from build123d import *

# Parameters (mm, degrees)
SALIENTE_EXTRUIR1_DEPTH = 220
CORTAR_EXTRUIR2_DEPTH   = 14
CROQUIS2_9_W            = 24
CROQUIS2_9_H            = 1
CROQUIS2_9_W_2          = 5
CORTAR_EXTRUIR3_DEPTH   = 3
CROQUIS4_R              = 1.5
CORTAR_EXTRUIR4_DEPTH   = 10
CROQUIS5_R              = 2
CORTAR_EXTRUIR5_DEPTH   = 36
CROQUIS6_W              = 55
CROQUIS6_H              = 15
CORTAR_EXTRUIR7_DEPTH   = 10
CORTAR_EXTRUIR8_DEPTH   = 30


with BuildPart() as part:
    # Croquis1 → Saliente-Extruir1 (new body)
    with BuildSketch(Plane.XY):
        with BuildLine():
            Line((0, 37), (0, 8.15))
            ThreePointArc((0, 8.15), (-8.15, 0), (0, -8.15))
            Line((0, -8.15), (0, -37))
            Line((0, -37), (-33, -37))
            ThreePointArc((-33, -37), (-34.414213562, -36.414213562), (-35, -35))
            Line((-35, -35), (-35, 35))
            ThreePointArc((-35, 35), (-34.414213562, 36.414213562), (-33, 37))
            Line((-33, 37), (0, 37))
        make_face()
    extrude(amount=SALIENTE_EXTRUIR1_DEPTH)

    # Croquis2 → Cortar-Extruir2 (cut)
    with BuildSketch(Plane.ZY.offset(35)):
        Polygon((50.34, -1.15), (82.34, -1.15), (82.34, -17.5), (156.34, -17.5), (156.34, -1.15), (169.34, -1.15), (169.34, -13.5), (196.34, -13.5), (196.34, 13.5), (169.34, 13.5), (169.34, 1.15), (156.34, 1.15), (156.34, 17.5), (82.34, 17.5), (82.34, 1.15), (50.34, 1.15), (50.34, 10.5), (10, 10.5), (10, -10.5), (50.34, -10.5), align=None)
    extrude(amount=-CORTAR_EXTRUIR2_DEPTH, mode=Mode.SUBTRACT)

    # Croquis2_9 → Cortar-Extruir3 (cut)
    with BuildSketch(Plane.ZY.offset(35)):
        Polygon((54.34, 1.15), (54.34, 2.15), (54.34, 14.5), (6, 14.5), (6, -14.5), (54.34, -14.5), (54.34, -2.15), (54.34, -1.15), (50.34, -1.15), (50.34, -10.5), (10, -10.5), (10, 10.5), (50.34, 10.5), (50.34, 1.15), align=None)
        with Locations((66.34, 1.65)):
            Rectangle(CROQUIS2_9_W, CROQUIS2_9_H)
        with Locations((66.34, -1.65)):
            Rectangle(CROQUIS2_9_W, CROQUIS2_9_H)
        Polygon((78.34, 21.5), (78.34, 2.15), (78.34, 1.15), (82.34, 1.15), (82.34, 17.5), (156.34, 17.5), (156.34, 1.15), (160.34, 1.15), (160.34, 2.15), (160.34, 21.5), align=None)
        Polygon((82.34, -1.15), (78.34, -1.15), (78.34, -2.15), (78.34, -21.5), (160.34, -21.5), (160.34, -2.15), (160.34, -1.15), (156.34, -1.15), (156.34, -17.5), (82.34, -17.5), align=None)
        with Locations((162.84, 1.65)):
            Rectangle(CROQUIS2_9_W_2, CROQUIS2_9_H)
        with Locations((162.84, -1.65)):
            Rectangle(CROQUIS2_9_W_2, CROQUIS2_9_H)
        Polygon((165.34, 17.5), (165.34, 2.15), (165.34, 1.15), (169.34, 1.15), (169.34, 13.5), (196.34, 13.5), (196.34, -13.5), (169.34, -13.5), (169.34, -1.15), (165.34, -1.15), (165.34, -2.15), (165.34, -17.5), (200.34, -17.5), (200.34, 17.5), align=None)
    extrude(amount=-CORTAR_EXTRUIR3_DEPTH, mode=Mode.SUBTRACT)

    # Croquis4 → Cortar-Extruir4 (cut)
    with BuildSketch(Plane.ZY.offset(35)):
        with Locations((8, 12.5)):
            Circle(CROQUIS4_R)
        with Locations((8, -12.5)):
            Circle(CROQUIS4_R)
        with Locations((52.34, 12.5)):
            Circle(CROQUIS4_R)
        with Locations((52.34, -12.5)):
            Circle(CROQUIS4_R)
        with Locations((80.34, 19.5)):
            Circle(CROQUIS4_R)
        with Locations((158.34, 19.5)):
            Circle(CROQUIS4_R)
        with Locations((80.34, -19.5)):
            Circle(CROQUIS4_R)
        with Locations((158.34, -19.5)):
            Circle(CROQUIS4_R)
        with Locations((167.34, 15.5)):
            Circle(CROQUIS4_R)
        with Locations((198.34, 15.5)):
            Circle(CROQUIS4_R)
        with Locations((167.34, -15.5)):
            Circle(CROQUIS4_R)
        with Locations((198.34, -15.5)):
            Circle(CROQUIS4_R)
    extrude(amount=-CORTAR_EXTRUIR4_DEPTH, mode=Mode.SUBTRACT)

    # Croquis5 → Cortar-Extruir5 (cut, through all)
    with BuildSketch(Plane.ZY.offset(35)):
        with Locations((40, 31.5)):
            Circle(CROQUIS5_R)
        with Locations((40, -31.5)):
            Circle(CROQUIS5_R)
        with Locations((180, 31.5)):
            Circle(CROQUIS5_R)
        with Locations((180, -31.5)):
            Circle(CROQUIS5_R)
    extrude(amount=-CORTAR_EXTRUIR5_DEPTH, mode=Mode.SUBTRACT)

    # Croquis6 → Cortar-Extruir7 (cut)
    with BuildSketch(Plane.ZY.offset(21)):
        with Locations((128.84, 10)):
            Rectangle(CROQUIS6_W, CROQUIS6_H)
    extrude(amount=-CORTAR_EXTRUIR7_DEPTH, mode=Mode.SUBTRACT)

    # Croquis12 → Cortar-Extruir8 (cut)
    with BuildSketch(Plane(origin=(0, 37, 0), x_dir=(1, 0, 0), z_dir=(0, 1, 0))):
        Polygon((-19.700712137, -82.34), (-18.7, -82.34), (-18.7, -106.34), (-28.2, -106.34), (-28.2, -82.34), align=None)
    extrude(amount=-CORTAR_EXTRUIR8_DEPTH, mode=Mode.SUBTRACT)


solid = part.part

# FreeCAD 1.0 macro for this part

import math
import FreeCAD as App
import Part
import Sketcher

V = App.Vector
Q = App.Units.Quantity

doc = App.newDocument("Part")
body = doc.addObject("PartDesign::Body", "Body")

# Sketch on XY plane
sketch1 = body.newObject("Sketcher::SketchObject", "Sketch")
sketch1.AttachmentSupport = (doc.getObject("XY_Plane"), [""])
sketch1.MapMode = "FlatFace"
sketch1.addGeometry(Part.LineSegment(V(0, 8.15, 0), V(0, 37, 0)), False)
sketch1.addGeometry(Part.LineSegment(V(0, 37, 0), V(-33, 37, 0)), False)
sketch1.addGeometry(Part.ArcOfCircle(Part.Circle(V(-33, 35, 0), V(0, 0, 1), 2), math.radians(90), math.radians(180)), False)
sketch1.addGeometry(Part.LineSegment(V(-35, 35, 0), V(-35, -35, 0)), False)
sketch1.addGeometry(Part.ArcOfCircle(Part.Circle(V(-33, -35, 0), V(0, 0, 1), 2), math.radians(-180), math.radians(-90)), False)
sketch1.addGeometry(Part.LineSegment(V(-33, -37, 0), V(0, -37, 0)), False)
sketch1.addGeometry(Part.LineSegment(V(0, -37, 0), V(0, -8.15, 0)), False)
sketch1.addGeometry(Part.ArcOfCircle(Part.Circle(V(0, 0, 0), V(0, 0, 1), 8.15), math.radians(90), math.radians(270)), False)
sketch1.addConstraint(Sketcher.Constraint("Coincident", 0, 2, 1, 1))
sketch1.addConstraint(Sketcher.Constraint("Tangent", 1, 2, 2, 1))
sketch1.addConstraint(Sketcher.Constraint("Tangent", 2, 2, 3, 1))
sketch1.addConstraint(Sketcher.Constraint("Tangent", 3, 2, 4, 1))
sketch1.addConstraint(Sketcher.Constraint("Tangent", 4, 2, 5, 1))
sketch1.addConstraint(Sketcher.Constraint("Coincident", 5, 2, 6, 1))
sketch1.addConstraint(Sketcher.Constraint("Coincident", 6, 2, 7, 2))
sketch1.addConstraint(Sketcher.Constraint("Coincident", 7, 1, 0, 1))
sketch1.addConstraint(Sketcher.Constraint("Vertical", 0))
sketch1.addConstraint(Sketcher.Constraint("Horizontal", 1))
sketch1.addConstraint(Sketcher.Constraint("Vertical", 3))
sketch1.addConstraint(Sketcher.Constraint("Horizontal", 5))
sketch1.addConstraint(Sketcher.Constraint("Vertical", 6))
sketch1.addConstraint(Sketcher.Constraint("Coincident", 7, 3, -1, 1))
sketch1.addConstraint(Sketcher.Constraint("Equal", 2, 4))
sketch1.addConstraint(Sketcher.Constraint("Symmetric", 0, 2, 5, 2, -1, 1))
sketch1.addConstraint(Sketcher.Constraint("PointOnObject", 0, 2, -2))
sketch1.addConstraint(Sketcher.Constraint("Radius", 2, Q("2 mm")))
sketch1.addConstraint(Sketcher.Constraint("DistanceX", 1, 2, 1, 1, Q("33 mm")))
sketch1.addConstraint(Sketcher.Constraint("DistanceY", 3, 2, 3, 1, Q("70 mm")))
sketch1.addConstraint(Sketcher.Constraint("Radius", 7, Q("8.15 mm")))
pad1 = body.newObject("PartDesign::Pad", "Pad")
pad1.Profile = sketch1
pad1.Length = 220

# Sketch on YZ plane
sketch2 = body.newObject("Sketcher::SketchObject", "Sketch001")
sketch2.AttachmentSupport = (doc.getObject("YZ_Plane"), [""])
sketch2.MapMode = "FlatFace"
sketch2.AttachmentOffset = App.Placement(V(0, 0, -35), App.Rotation())
sketch2.addGeometry(Part.LineSegment(V(-1.15, 50.34, 0), V(-1.15, 82.34, 0)), False)
sketch2.addGeometry(Part.LineSegment(V(-1.15, 82.34, 0), V(-17.5, 82.34, 0)), False)
sketch2.addGeometry(Part.LineSegment(V(-17.5, 82.34, 0), V(-17.5, 156.34, 0)), False)
sketch2.addGeometry(Part.LineSegment(V(-17.5, 156.34, 0), V(-1.15, 156.34, 0)), False)
sketch2.addGeometry(Part.LineSegment(V(-1.15, 156.34, 0), V(-1.15, 169.34, 0)), False)
sketch2.addGeometry(Part.LineSegment(V(-1.15, 169.34, 0), V(-13.5, 169.34, 0)), False)
sketch2.addGeometry(Part.LineSegment(V(-13.5, 169.34, 0), V(-13.5, 196.34, 0)), False)
sketch2.addGeometry(Part.LineSegment(V(-13.5, 196.34, 0), V(13.5, 196.34, 0)), False)
sketch2.addGeometry(Part.LineSegment(V(13.5, 196.34, 0), V(13.5, 169.34, 0)), False)
sketch2.addGeometry(Part.LineSegment(V(13.5, 169.34, 0), V(1.15, 169.34, 0)), False)
sketch2.addGeometry(Part.LineSegment(V(1.15, 169.34, 0), V(1.15, 156.34, 0)), False)
sketch2.addGeometry(Part.LineSegment(V(1.15, 156.34, 0), V(17.5, 156.34, 0)), False)
sketch2.addGeometry(Part.LineSegment(V(17.5, 156.34, 0), V(17.5, 82.34, 0)), False)
sketch2.addGeometry(Part.LineSegment(V(17.5, 82.34, 0), V(1.15, 82.34, 0)), False)
sketch2.addGeometry(Part.LineSegment(V(1.15, 82.34, 0), V(1.15, 50.34, 0)), False)
sketch2.addGeometry(Part.LineSegment(V(1.15, 50.34, 0), V(10.5, 50.34, 0)), False)
sketch2.addGeometry(Part.LineSegment(V(10.5, 50.34, 0), V(10.5, 10, 0)), False)
sketch2.addGeometry(Part.LineSegment(V(10.5, 10, 0), V(-10.5, 10, 0)), False)
sketch2.addGeometry(Part.LineSegment(V(-10.5, 10, 0), V(-10.5, 50.34, 0)), False)
sketch2.addGeometry(Part.LineSegment(V(-10.5, 50.34, 0), V(-1.15, 50.34, 0)), False)
sketch2.addConstraint(Sketcher.Constraint("Coincident", 0, 2, 1, 1))
sketch2.addConstraint(Sketcher.Constraint("Coincident", 1, 2, 2, 1))
sketch2.addConstraint(Sketcher.Constraint("Coincident", 2, 2, 3, 1))
sketch2.addConstraint(Sketcher.Constraint("Coincident", 3, 2, 4, 1))
sketch2.addConstraint(Sketcher.Constraint("Coincident", 4, 2, 5, 1))
sketch2.addConstraint(Sketcher.Constraint("Coincident", 5, 2, 6, 1))
sketch2.addConstraint(Sketcher.Constraint("Coincident", 6, 2, 7, 1))
sketch2.addConstraint(Sketcher.Constraint("Coincident", 7, 2, 8, 1))
sketch2.addConstraint(Sketcher.Constraint("Coincident", 8, 2, 9, 1))
sketch2.addConstraint(Sketcher.Constraint("Coincident", 9, 2, 10, 1))
sketch2.addConstraint(Sketcher.Constraint("Coincident", 10, 2, 11, 1))
sketch2.addConstraint(Sketcher.Constraint("Coincident", 11, 2, 12, 1))
sketch2.addConstraint(Sketcher.Constraint("Coincident", 12, 2, 13, 1))
sketch2.addConstraint(Sketcher.Constraint("Coincident", 13, 2, 14, 1))
sketch2.addConstraint(Sketcher.Constraint("Coincident", 14, 2, 15, 1))
sketch2.addConstraint(Sketcher.Constraint("Coincident", 15, 2, 16, 1))
sketch2.addConstraint(Sketcher.Constraint("Coincident", 16, 2, 17, 1))
sketch2.addConstraint(Sketcher.Constraint("Coincident", 17, 2, 18, 1))
sketch2.addConstraint(Sketcher.Constraint("Coincident", 18, 2, 19, 1))
sketch2.addConstraint(Sketcher.Constraint("Coincident", 19, 2, 0, 1))
sketch2.addConstraint(Sketcher.Constraint("Vertical", 0))
sketch2.addConstraint(Sketcher.Constraint("Horizontal", 1))
sketch2.addConstraint(Sketcher.Constraint("Vertical", 2))
sketch2.addConstraint(Sketcher.Constraint("Horizontal", 3))
sketch2.addConstraint(Sketcher.Constraint("Vertical", 4))
sketch2.addConstraint(Sketcher.Constraint("Horizontal", 5))
sketch2.addConstraint(Sketcher.Constraint("Vertical", 6))
sketch2.addConstraint(Sketcher.Constraint("Horizontal", 7))
sketch2.addConstraint(Sketcher.Constraint("Vertical", 8))
sketch2.addConstraint(Sketcher.Constraint("Horizontal", 9))
sketch2.addConstraint(Sketcher.Constraint("Vertical", 10))
sketch2.addConstraint(Sketcher.Constraint("Horizontal", 11))
sketch2.addConstraint(Sketcher.Constraint("Vertical", 12))
sketch2.addConstraint(Sketcher.Constraint("Horizontal", 13))
sketch2.addConstraint(Sketcher.Constraint("Vertical", 14))
sketch2.addConstraint(Sketcher.Constraint("Horizontal", 15))
sketch2.addConstraint(Sketcher.Constraint("Vertical", 16))
sketch2.addConstraint(Sketcher.Constraint("Horizontal", 17))
sketch2.addConstraint(Sketcher.Constraint("Vertical", 18))
sketch2.addConstraint(Sketcher.Constraint("Horizontal", 19))
sketch2.addConstraint(Sketcher.Constraint("Symmetric", 5, 2, 8, 2, -2))
sketch2.addConstraint(Sketcher.Constraint("Symmetric", 3, 2, 10, 2, -2))
sketch2.addConstraint(Sketcher.Constraint("Symmetric", 1, 2, 12, 2, -2))
sketch2.addConstraint(Sketcher.Constraint("Symmetric", 15, 2, 18, 2, -2))
sketch2.addConstraint(Sketcher.Constraint("Vertical", 0, 2, 3, 2))
sketch2.addConstraint(Sketcher.Constraint("Vertical", 10, 2, 13, 2))
sketch2.addConstraint(Sketcher.Constraint("Equal", 7, 6))
sketch2.addConstraint(Sketcher.Constraint("DistanceX", 7, 1, 7, 2, Q("27 mm")))
sketch2.addConstraint(Sketcher.Constraint("DistanceX", 17, 2, 17, 1, Q("21 mm")))
sketch2.addConstraint(Sketcher.Constraint("DistanceY", 0, 1, 0, 2, Q("32 mm")))
sketch2.addConstraint(Sketcher.Constraint("DistanceY", 2, 1, 2, 2, Q("74 mm")))
sketch2.addConstraint(Sketcher.Constraint("DistanceY", 4, 1, 4, 2, Q("13 mm")))
sketch2.addConstraint(Sketcher.Constraint("DistanceY", -1, 1, 16, 2, Q("10 mm")))
sketch2.addConstraint(Sketcher.Constraint("DistanceX", 2, 2, 5, 2, Q("4 mm")))
sketch2.addConstraint(Sketcher.Constraint("DistanceX", 1, 2, 1, 1, Q("16.35 mm")))
sketch2.addConstraint(Sketcher.Constraint("DistanceY", 16, 2, 16, 1, Q("40.34 mm")))
pocket1 = body.newObject("PartDesign::Pocket", "Pocket")
pocket1.Profile = sketch2
pocket1.Length = 14
pocket1.Reversed = True

# Sketch on YZ plane
sketch3 = body.newObject("Sketcher::SketchObject", "Sketch002")
sketch3.AttachmentSupport = (doc.getObject("YZ_Plane"), [""])
sketch3.MapMode = "FlatFace"
sketch3.AttachmentOffset = App.Placement(V(0, 0, -35), App.Rotation())
sketch3.addGeometry(Part.LineSegment(V(2.15, 54.34, 0), V(14.5, 54.34, 0)), False)
sketch3.addGeometry(Part.LineSegment(V(14.5, 54.34, 0), V(14.5, 6, 0)), False)
sketch3.addGeometry(Part.LineSegment(V(14.5, 6, 0), V(-14.5, 6, 0)), False)
sketch3.addGeometry(Part.LineSegment(V(-14.5, 6, 0), V(-14.5, 54.34, 0)), False)
sketch3.addGeometry(Part.LineSegment(V(-14.5, 54.34, 0), V(-2.15, 54.34, 0)), False)
sketch3.addGeometry(Part.LineSegment(V(-2.15, 54.34, 0), V(-2.15, 78.34, 0)), False)
sketch3.addGeometry(Part.LineSegment(V(-2.15, 78.34, 0), V(-21.5, 78.34, 0)), False)
sketch3.addGeometry(Part.LineSegment(V(-21.5, 78.34, 0), V(-21.5, 160.34, 0)), False)
sketch3.addGeometry(Part.LineSegment(V(-21.5, 160.34, 0), V(-2.15, 160.34, 0)), False)
sketch3.addGeometry(Part.LineSegment(V(-2.15, 160.34, 0), V(-2.15, 165.34, 0)), False)
sketch3.addGeometry(Part.LineSegment(V(-2.15, 165.34, 0), V(-17.5, 165.34, 0)), False)
sketch3.addGeometry(Part.LineSegment(V(-17.5, 165.34, 0), V(-17.5, 200.34, 0)), False)
sketch3.addGeometry(Part.LineSegment(V(-17.5, 200.34, 0), V(17.5, 200.34, 0)), False)
sketch3.addGeometry(Part.LineSegment(V(17.5, 200.34, 0), V(17.5, 165.34, 0)), False)
sketch3.addGeometry(Part.LineSegment(V(17.5, 165.34, 0), V(2.15, 165.34, 0)), False)
sketch3.addGeometry(Part.LineSegment(V(2.15, 165.34, 0), V(2.15, 160.34, 0)), False)
sketch3.addGeometry(Part.LineSegment(V(2.15, 160.34, 0), V(21.5, 160.34, 0)), False)
sketch3.addGeometry(Part.LineSegment(V(21.5, 160.34, 0), V(21.5, 78.34, 0)), False)
sketch3.addGeometry(Part.LineSegment(V(21.5, 78.34, 0), V(2.15, 78.34, 0)), False)
sketch3.addGeometry(Part.LineSegment(V(2.15, 78.34, 0), V(2.15, 54.34, 0)), False)
sketch3.addGeometry(Part.LineSegment(V(-1.15, 156.34, 0), V(-17.5, 156.34, 0)), False)
sketch3.addGeometry(Part.LineSegment(V(-17.5, 156.34, 0), V(-17.5, 82.34, 0)), False)
sketch3.addGeometry(Part.LineSegment(V(-17.5, 82.34, 0), V(-1.15, 82.34, 0)), False)
sketch3.addGeometry(Part.LineSegment(V(-1.15, 82.34, 0), V(-1.15, 50.34, 0)), False)
sketch3.addGeometry(Part.LineSegment(V(-1.15, 50.34, 0), V(-10.5, 50.34, 0)), False)
sketch3.addGeometry(Part.LineSegment(V(-10.5, 50.34, 0), V(-10.5, 10, 0)), False)
sketch3.addGeometry(Part.LineSegment(V(-10.5, 10, 0), V(10.5, 10, 0)), False)
sketch3.addGeometry(Part.LineSegment(V(10.5, 10, 0), V(10.5, 50.34, 0)), False)
sketch3.addGeometry(Part.LineSegment(V(10.5, 50.34, 0), V(1.15, 50.34, 0)), False)
sketch3.addGeometry(Part.LineSegment(V(1.15, 50.34, 0), V(1.15, 82.34, 0)), False)
sketch3.addGeometry(Part.LineSegment(V(1.15, 82.34, 0), V(17.5, 82.34, 0)), False)
sketch3.addGeometry(Part.LineSegment(V(17.5, 82.34, 0), V(17.5, 156.34, 0)), False)
sketch3.addGeometry(Part.LineSegment(V(17.5, 156.34, 0), V(1.15, 156.34, 0)), False)
sketch3.addGeometry(Part.LineSegment(V(1.15, 156.34, 0), V(1.15, 169.34, 0)), False)
sketch3.addGeometry(Part.LineSegment(V(1.15, 169.34, 0), V(13.5, 169.34, 0)), False)
sketch3.addGeometry(Part.LineSegment(V(13.5, 169.34, 0), V(13.5, 196.34, 0)), False)
sketch3.addGeometry(Part.LineSegment(V(13.5, 196.34, 0), V(-13.5, 196.34, 0)), False)
sketch3.addGeometry(Part.LineSegment(V(-13.5, 196.34, 0), V(-13.5, 169.34, 0)), False)
sketch3.addGeometry(Part.LineSegment(V(-13.5, 169.34, 0), V(-1.15, 169.34, 0)), False)
sketch3.addGeometry(Part.LineSegment(V(-1.15, 169.34, 0), V(-1.15, 156.34, 0)), False)
sketch3.addConstraint(Sketcher.Constraint("Coincident", 0, 2, 1, 1))
sketch3.addConstraint(Sketcher.Constraint("Coincident", 1, 2, 2, 1))
sketch3.addConstraint(Sketcher.Constraint("Coincident", 2, 2, 3, 1))
sketch3.addConstraint(Sketcher.Constraint("Coincident", 3, 2, 4, 1))
sketch3.addConstraint(Sketcher.Constraint("Coincident", 4, 2, 5, 1))
sketch3.addConstraint(Sketcher.Constraint("Coincident", 5, 2, 6, 1))
sketch3.addConstraint(Sketcher.Constraint("Coincident", 6, 2, 7, 1))
sketch3.addConstraint(Sketcher.Constraint("Coincident", 7, 2, 8, 1))
sketch3.addConstraint(Sketcher.Constraint("Coincident", 8, 2, 9, 1))
sketch3.addConstraint(Sketcher.Constraint("Coincident", 9, 2, 10, 1))
sketch3.addConstraint(Sketcher.Constraint("Coincident", 10, 2, 11, 1))
sketch3.addConstraint(Sketcher.Constraint("Coincident", 11, 2, 12, 1))
sketch3.addConstraint(Sketcher.Constraint("Coincident", 12, 2, 13, 1))
sketch3.addConstraint(Sketcher.Constraint("Coincident", 13, 2, 14, 1))
sketch3.addConstraint(Sketcher.Constraint("Coincident", 14, 2, 15, 1))
sketch3.addConstraint(Sketcher.Constraint("Coincident", 15, 2, 16, 1))
sketch3.addConstraint(Sketcher.Constraint("Coincident", 16, 2, 17, 1))
sketch3.addConstraint(Sketcher.Constraint("Coincident", 17, 2, 18, 1))
sketch3.addConstraint(Sketcher.Constraint("Coincident", 18, 2, 19, 1))
sketch3.addConstraint(Sketcher.Constraint("Coincident", 19, 2, 0, 1))
sketch3.addConstraint(Sketcher.Constraint("Coincident", 20, 2, 21, 1))
sketch3.addConstraint(Sketcher.Constraint("Coincident", 21, 2, 22, 1))
sketch3.addConstraint(Sketcher.Constraint("Coincident", 22, 2, 23, 1))
sketch3.addConstraint(Sketcher.Constraint("Coincident", 23, 2, 24, 1))
sketch3.addConstraint(Sketcher.Constraint("Coincident", 24, 2, 25, 1))
sketch3.addConstraint(Sketcher.Constraint("Coincident", 25, 2, 26, 1))
sketch3.addConstraint(Sketcher.Constraint("Coincident", 26, 2, 27, 1))
sketch3.addConstraint(Sketcher.Constraint("Coincident", 27, 2, 28, 1))
sketch3.addConstraint(Sketcher.Constraint("Coincident", 28, 2, 29, 1))
sketch3.addConstraint(Sketcher.Constraint("Coincident", 29, 2, 30, 1))
sketch3.addConstraint(Sketcher.Constraint("Coincident", 30, 2, 31, 1))
sketch3.addConstraint(Sketcher.Constraint("Coincident", 31, 2, 32, 1))
sketch3.addConstraint(Sketcher.Constraint("Coincident", 32, 2, 33, 1))
sketch3.addConstraint(Sketcher.Constraint("Coincident", 33, 2, 34, 1))
sketch3.addConstraint(Sketcher.Constraint("Coincident", 34, 2, 35, 1))
sketch3.addConstraint(Sketcher.Constraint("Coincident", 35, 2, 36, 1))
sketch3.addConstraint(Sketcher.Constraint("Coincident", 36, 2, 37, 1))
sketch3.addConstraint(Sketcher.Constraint("Coincident", 37, 2, 38, 1))
sketch3.addConstraint(Sketcher.Constraint("Coincident", 38, 2, 39, 1))
sketch3.addConstraint(Sketcher.Constraint("Coincident", 39, 2, 20, 1))
sketch3.addConstraint(Sketcher.Constraint("Horizontal", 0))
sketch3.addConstraint(Sketcher.Constraint("Vertical", 1))
sketch3.addConstraint(Sketcher.Constraint("Horizontal", 2))
sketch3.addConstraint(Sketcher.Constraint("Vertical", 3))
sketch3.addConstraint(Sketcher.Constraint("Horizontal", 4))
sketch3.addConstraint(Sketcher.Constraint("Vertical", 5))
sketch3.addConstraint(Sketcher.Constraint("Horizontal", 6))
sketch3.addConstraint(Sketcher.Constraint("Vertical", 7))
sketch3.addConstraint(Sketcher.Constraint("Horizontal", 8))
sketch3.addConstraint(Sketcher.Constraint("Vertical", 9))
sketch3.addConstraint(Sketcher.Constraint("Horizontal", 10))
sketch3.addConstraint(Sketcher.Constraint("Vertical", 11))
sketch3.addConstraint(Sketcher.Constraint("Horizontal", 12))
sketch3.addConstraint(Sketcher.Constraint("Vertical", 13))
sketch3.addConstraint(Sketcher.Constraint("Horizontal", 14))
sketch3.addConstraint(Sketcher.Constraint("Vertical", 15))
sketch3.addConstraint(Sketcher.Constraint("Horizontal", 16))
sketch3.addConstraint(Sketcher.Constraint("Vertical", 17))
sketch3.addConstraint(Sketcher.Constraint("Horizontal", 18))
sketch3.addConstraint(Sketcher.Constraint("Vertical", 19))
sketch3.addConstraint(Sketcher.Constraint("Horizontal", 20))
sketch3.addConstraint(Sketcher.Constraint("Vertical", 21))
sketch3.addConstraint(Sketcher.Constraint("Horizontal", 22))
sketch3.addConstraint(Sketcher.Constraint("Vertical", 23))
sketch3.addConstraint(Sketcher.Constraint("Horizontal", 24))
sketch3.addConstraint(Sketcher.Constraint("Vertical", 25))
sketch3.addConstraint(Sketcher.Constraint("Horizontal", 26))
sketch3.addConstraint(Sketcher.Constraint("Vertical", 27))
sketch3.addConstraint(Sketcher.Constraint("Horizontal", 28))
sketch3.addConstraint(Sketcher.Constraint("Vertical", 29))
sketch3.addConstraint(Sketcher.Constraint("Horizontal", 30))
sketch3.addConstraint(Sketcher.Constraint("Vertical", 31))
sketch3.addConstraint(Sketcher.Constraint("Horizontal", 32))
sketch3.addConstraint(Sketcher.Constraint("Vertical", 33))
sketch3.addConstraint(Sketcher.Constraint("Horizontal", 34))
sketch3.addConstraint(Sketcher.Constraint("Vertical", 35))
sketch3.addConstraint(Sketcher.Constraint("Horizontal", 36))
sketch3.addConstraint(Sketcher.Constraint("Vertical", 37))
sketch3.addConstraint(Sketcher.Constraint("Horizontal", 38))
sketch3.addConstraint(Sketcher.Constraint("Vertical", 39))
sketch3.addConstraint(Sketcher.Constraint("Symmetric", 0, 2, 3, 2, -2))
sketch3.addConstraint(Sketcher.Constraint("Symmetric", 10, 2, 13, 2, -2))
sketch3.addConstraint(Sketcher.Constraint("Symmetric", 8, 2, 15, 2, -2))
sketch3.addConstraint(Sketcher.Constraint("Symmetric", 6, 2, 17, 2, -2))
sketch3.addConstraint(Sketcher.Constraint("Symmetric", 24, 2, 27, 2, -2))
sketch3.addConstraint(Sketcher.Constraint("Symmetric", 22, 2, 29, 2, -2))
sketch3.addConstraint(Sketcher.Constraint("Symmetric", 20, 2, 31, 2, -2))
sketch3.addConstraint(Sketcher.Constraint("Symmetric", 34, 2, 37, 2, -2))
sketch3.addConstraint(Sketcher.Constraint("Vertical", 5, 2, 8, 2))
sketch3.addConstraint(Sketcher.Constraint("Vertical", 15, 2, 18, 2))
sketch3.addConstraint(Sketcher.Constraint("Vertical", 11, 2, 20, 2))
sketch3.addConstraint(Sketcher.Constraint("Vertical", 29, 2, 32, 2))
sketch3.addConstraint(Sketcher.Constraint("Vertical", 23, 2, 38, 2))
sketch3.addConstraint(Sketcher.Constraint("Equal", 4, 34))
sketch3.addConstraint(Sketcher.Constraint("Equal", 12, 11))
sketch3.addConstraint(Sketcher.Constraint("Equal", 36, 35))
sketch3.addConstraint(Sketcher.Constraint("DistanceX", 2, 2, 2, 1, Q("29 mm")))
sketch3.addConstraint(Sketcher.Constraint("DistanceX", 12, 1, 12, 2, Q("35 mm")))
sketch3.addConstraint(Sketcher.Constraint("DistanceX", 26, 1, 26, 2, Q("21 mm")))
sketch3.addConstraint(Sketcher.Constraint("DistanceX", 36, 2, 36, 1, Q("27 mm")))
sketch3.addConstraint(Sketcher.Constraint("DistanceY", 5, 1, 5, 2, Q("24 mm")))
sketch3.addConstraint(Sketcher.Constraint("DistanceY", 7, 1, 7, 2, Q("82 mm")))
sketch3.addConstraint(Sketcher.Constraint("DistanceY", 9, 1, 9, 2, Q("5 mm")))
sketch3.addConstraint(Sketcher.Constraint("DistanceY", 21, 2, 21, 1, Q("74 mm")))
sketch3.addConstraint(Sketcher.Constraint("DistanceY", 23, 2, 23, 1, Q("32 mm")))
sketch3.addConstraint(Sketcher.Constraint("DistanceY", 33, 1, 33, 2, Q("13 mm")))
sketch3.addConstraint(Sketcher.Constraint("DistanceY", -1, 1, 1, 2, Q("6 mm")))
sketch3.addConstraint(Sketcher.Constraint("DistanceY", -1, 1, 25, 2, Q("10 mm")))
sketch3.addConstraint(Sketcher.Constraint("DistanceX", 6, 2, 3, 2, Q("7 mm")))
sketch3.addConstraint(Sketcher.Constraint("DistanceY", 20, 2, 7, 2, Q("4 mm")))
sketch3.addConstraint(Sketcher.Constraint("DistanceX", 0, 1, 0, 2, Q("12.35 mm")))
sketch3.addConstraint(Sketcher.Constraint("DistanceY", 1, 2, 1, 1, Q("48.34 mm")))
pocket2 = body.newObject("PartDesign::Pocket", "Pocket001")
pocket2.Profile = sketch3
pocket2.Length = 3
pocket2.Reversed = True

# Sketch on YZ plane
sketch4 = body.newObject("Sketcher::SketchObject", "Sketch003")
sketch4.AttachmentSupport = (doc.getObject("YZ_Plane"), [""])
sketch4.MapMode = "FlatFace"
sketch4.AttachmentOffset = App.Placement(V(0, 0, -35), App.Rotation())
sketch4.addGeometry(Part.Circle(V(12.5, 8, 0), V(0, 0, 1), 1.5), False)
sketch4.addGeometry(Part.Circle(V(-12.5, 8, 0), V(0, 0, 1), 1.5), False)
sketch4.addGeometry(Part.Circle(V(12.5, 52.34, 0), V(0, 0, 1), 1.5), False)
sketch4.addGeometry(Part.Circle(V(-12.5, 52.34, 0), V(0, 0, 1), 1.5), False)
sketch4.addGeometry(Part.Circle(V(19.5, 80.34, 0), V(0, 0, 1), 1.5), False)
sketch4.addGeometry(Part.Circle(V(19.5, 158.34, 0), V(0, 0, 1), 1.5), False)
sketch4.addGeometry(Part.Circle(V(-19.5, 80.34, 0), V(0, 0, 1), 1.5), False)
sketch4.addGeometry(Part.Circle(V(-19.5, 158.34, 0), V(0, 0, 1), 1.5), False)
sketch4.addGeometry(Part.Circle(V(15.5, 167.34, 0), V(0, 0, 1), 1.5), False)
sketch4.addGeometry(Part.Circle(V(15.5, 198.34, 0), V(0, 0, 1), 1.5), False)
sketch4.addGeometry(Part.Circle(V(-15.5, 167.34, 0), V(0, 0, 1), 1.5), False)
sketch4.addGeometry(Part.Circle(V(-15.5, 198.34, 0), V(0, 0, 1), 1.5), False)
sketch4.addConstraint(Sketcher.Constraint("Equal", 0, 1))
sketch4.addConstraint(Sketcher.Constraint("Equal", 1, 2))
sketch4.addConstraint(Sketcher.Constraint("Equal", 2, 3))
sketch4.addConstraint(Sketcher.Constraint("Equal", 3, 4))
sketch4.addConstraint(Sketcher.Constraint("Equal", 4, 5))
sketch4.addConstraint(Sketcher.Constraint("Equal", 5, 6))
sketch4.addConstraint(Sketcher.Constraint("Equal", 6, 7))
sketch4.addConstraint(Sketcher.Constraint("Equal", 7, 8))
sketch4.addConstraint(Sketcher.Constraint("Equal", 8, 9))
sketch4.addConstraint(Sketcher.Constraint("Equal", 9, 10))
sketch4.addConstraint(Sketcher.Constraint("Equal", 10, 11))
sketch4.addConstraint(Sketcher.Constraint("Symmetric", 0, 3, 1, 3, -2))
sketch4.addConstraint(Sketcher.Constraint("Symmetric", 2, 3, 3, 3, -2))
sketch4.addConstraint(Sketcher.Constraint("Symmetric", 4, 3, 6, 3, -2))
sketch4.addConstraint(Sketcher.Constraint("Symmetric", 5, 3, 7, 3, -2))
sketch4.addConstraint(Sketcher.Constraint("Symmetric", 8, 3, 10, 3, -2))
sketch4.addConstraint(Sketcher.Constraint("Symmetric", 9, 3, 11, 3, -2))
sketch4.addConstraint(Sketcher.Constraint("Vertical", 0, 3, 2, 3))
sketch4.addConstraint(Sketcher.Constraint("Vertical", 4, 3, 5, 3))
sketch4.addConstraint(Sketcher.Constraint("Vertical", 8, 3, 9, 3))
sketch4.addConstraint(Sketcher.Constraint("Diameter", 0, Q("3 mm")))
sketch4.addConstraint(Sketcher.Constraint("DistanceY", -1, 1, 0, 3, Q("8 mm")))
sketch4.addConstraint(Sketcher.Constraint("DistanceX", 1, 3, 0, 3, Q("25 mm")))
sketch4.addConstraint(Sketcher.Constraint("DistanceX", 2, 3, 4, 3, Q("7 mm")))
sketch4.addConstraint(Sketcher.Constraint("DistanceY", 2, 3, 4, 3, Q("28 mm")))
sketch4.addConstraint(Sketcher.Constraint("DistanceY", 4, 3, 5, 3, Q("78 mm")))
sketch4.addConstraint(Sketcher.Constraint("DistanceX", 8, 3, 5, 3, Q("4 mm")))
sketch4.addConstraint(Sketcher.Constraint("DistanceY", 5, 3, 8, 3, Q("9 mm")))
sketch4.addConstraint(Sketcher.Constraint("DistanceY", 8, 3, 9, 3, Q("31 mm")))
sketch4.addConstraint(Sketcher.Constraint("DistanceY", -1, 1, 2, 3, Q("52.34 mm")))
pocket3 = body.newObject("PartDesign::Pocket", "Pocket002")
pocket3.Profile = sketch4
pocket3.Length = 10
pocket3.Reversed = True

# Sketch on YZ plane
sketch5 = body.newObject("Sketcher::SketchObject", "Sketch004")
sketch5.AttachmentSupport = (doc.getObject("YZ_Plane"), [""])
sketch5.MapMode = "FlatFace"
sketch5.AttachmentOffset = App.Placement(V(0, 0, -35), App.Rotation())
sketch5.addGeometry(Part.Circle(V(31.5, 40, 0), V(0, 0, 1), 2), False)
sketch5.addGeometry(Part.Circle(V(-31.5, 40, 0), V(0, 0, 1), 2), False)
sketch5.addGeometry(Part.Circle(V(31.5, 180, 0), V(0, 0, 1), 2), False)
sketch5.addGeometry(Part.Circle(V(-31.5, 180, 0), V(0, 0, 1), 2), False)
sketch5.addConstraint(Sketcher.Constraint("Equal", 0, 1))
sketch5.addConstraint(Sketcher.Constraint("Equal", 1, 2))
sketch5.addConstraint(Sketcher.Constraint("Equal", 2, 3))
sketch5.addConstraint(Sketcher.Constraint("Symmetric", 0, 3, 1, 3, -2))
sketch5.addConstraint(Sketcher.Constraint("Symmetric", 2, 3, 3, 3, -2))
sketch5.addConstraint(Sketcher.Constraint("Vertical", 0, 3, 2, 3))
sketch5.addConstraint(Sketcher.Constraint("Diameter", 0, Q("4 mm")))
sketch5.addConstraint(Sketcher.Constraint("DistanceY", -1, 1, 0, 3, Q("40 mm")))
sketch5.addConstraint(Sketcher.Constraint("DistanceY", -1, 1, 2, 3, Q("180 mm")))
sketch5.addConstraint(Sketcher.Constraint("DistanceX", 1, 3, 0, 3, Q("63 mm")))
pocket4 = body.newObject("PartDesign::Pocket", "Pocket003")
pocket4.Profile = sketch5
pocket4.Type = "ThroughAll"
pocket4.Reversed = True

# Sketch on YZ plane
sketch6 = body.newObject("Sketcher::SketchObject", "Sketch005")
sketch6.AttachmentSupport = (doc.getObject("YZ_Plane"), [""])
sketch6.MapMode = "FlatFace"
sketch6.AttachmentOffset = App.Placement(V(0, 0, -21), App.Rotation())
sketch6.addGeometry(Part.LineSegment(V(17.5, 101.34, 0), V(2.5, 101.34, 0)), False)
sketch6.addGeometry(Part.LineSegment(V(2.5, 101.34, 0), V(2.5, 156.34, 0)), False)
sketch6.addGeometry(Part.LineSegment(V(2.5, 156.34, 0), V(17.5, 156.34, 0)), False)
sketch6.addGeometry(Part.LineSegment(V(17.5, 156.34, 0), V(17.5, 101.34, 0)), False)
sketch6.addConstraint(Sketcher.Constraint("Coincident", 0, 2, 1, 1))
sketch6.addConstraint(Sketcher.Constraint("Coincident", 1, 2, 2, 1))
sketch6.addConstraint(Sketcher.Constraint("Coincident", 2, 2, 3, 1))
sketch6.addConstraint(Sketcher.Constraint("Coincident", 3, 2, 0, 1))
sketch6.addConstraint(Sketcher.Constraint("Horizontal", 0))
sketch6.addConstraint(Sketcher.Constraint("Vertical", 1))
sketch6.addConstraint(Sketcher.Constraint("Horizontal", 2))
sketch6.addConstraint(Sketcher.Constraint("Vertical", 3))
sketch6.addConstraint(Sketcher.Constraint("DistanceX", 0, 2, 0, 1, Q("15 mm")))
sketch6.addConstraint(Sketcher.Constraint("DistanceY", 1, 1, 1, 2, Q("55 mm")))
sketch6.addConstraint(Sketcher.Constraint("DistanceX", -1, 1, 0, 2, Q("2.5 mm")))
sketch6.addConstraint(Sketcher.Constraint("DistanceY", -1, 1, 0, 2, Q("101.34 mm")))
pocket5 = body.newObject("PartDesign::Pocket", "Pocket004")
pocket5.Profile = sketch6
pocket5.Length = 10
pocket5.Reversed = True

# Sketch on XZ plane
sketch7 = body.newObject("Sketcher::SketchObject", "Sketch006")
sketch7.AttachmentSupport = (doc.getObject("XZ_Plane"), [""])
sketch7.MapMode = "FlatFace"
sketch7.AttachmentOffset = App.Placement(V(0, 0, -37), App.Rotation())
sketch7.addGeometry(Part.LineSegment(V(-18.7, 82.34, 0), V(-28.2, 82.34, 0)), False)
sketch7.addGeometry(Part.LineSegment(V(-28.2, 82.34, 0), V(-28.2, 106.34, 0)), False)
sketch7.addGeometry(Part.LineSegment(V(-28.2, 106.34, 0), V(-18.7, 106.34, 0)), False)
sketch7.addGeometry(Part.LineSegment(V(-18.7, 106.34, 0), V(-18.7, 82.34, 0)), False)
sketch7.addConstraint(Sketcher.Constraint("Coincident", 0, 2, 1, 1))
sketch7.addConstraint(Sketcher.Constraint("Coincident", 1, 2, 2, 1))
sketch7.addConstraint(Sketcher.Constraint("Coincident", 2, 2, 3, 1))
sketch7.addConstraint(Sketcher.Constraint("Coincident", 3, 2, 0, 1))
sketch7.addConstraint(Sketcher.Constraint("Horizontal", 0))
sketch7.addConstraint(Sketcher.Constraint("Vertical", 1))
sketch7.addConstraint(Sketcher.Constraint("Horizontal", 2))
sketch7.addConstraint(Sketcher.Constraint("Vertical", 3))
sketch7.addConstraint(Sketcher.Constraint("DistanceY", 1, 1, 1, 2, Q("24 mm")))
sketch7.addConstraint(Sketcher.Constraint("DistanceX", 0, 2, 0, 1, Q("9.5 mm")))
sketch7.addConstraint(Sketcher.Constraint("DistanceX", 0, 2, -1, 1, Q("28.2 mm")))
sketch7.addConstraint(Sketcher.Constraint("DistanceY", -1, 1, 0, 2, Q("82.34 mm")))
pocket6 = body.newObject("PartDesign::Pocket", "Pocket005")
pocket6.Profile = sketch7
pocket6.Length = 30
pocket6.Reversed = True

doc.recompute()
